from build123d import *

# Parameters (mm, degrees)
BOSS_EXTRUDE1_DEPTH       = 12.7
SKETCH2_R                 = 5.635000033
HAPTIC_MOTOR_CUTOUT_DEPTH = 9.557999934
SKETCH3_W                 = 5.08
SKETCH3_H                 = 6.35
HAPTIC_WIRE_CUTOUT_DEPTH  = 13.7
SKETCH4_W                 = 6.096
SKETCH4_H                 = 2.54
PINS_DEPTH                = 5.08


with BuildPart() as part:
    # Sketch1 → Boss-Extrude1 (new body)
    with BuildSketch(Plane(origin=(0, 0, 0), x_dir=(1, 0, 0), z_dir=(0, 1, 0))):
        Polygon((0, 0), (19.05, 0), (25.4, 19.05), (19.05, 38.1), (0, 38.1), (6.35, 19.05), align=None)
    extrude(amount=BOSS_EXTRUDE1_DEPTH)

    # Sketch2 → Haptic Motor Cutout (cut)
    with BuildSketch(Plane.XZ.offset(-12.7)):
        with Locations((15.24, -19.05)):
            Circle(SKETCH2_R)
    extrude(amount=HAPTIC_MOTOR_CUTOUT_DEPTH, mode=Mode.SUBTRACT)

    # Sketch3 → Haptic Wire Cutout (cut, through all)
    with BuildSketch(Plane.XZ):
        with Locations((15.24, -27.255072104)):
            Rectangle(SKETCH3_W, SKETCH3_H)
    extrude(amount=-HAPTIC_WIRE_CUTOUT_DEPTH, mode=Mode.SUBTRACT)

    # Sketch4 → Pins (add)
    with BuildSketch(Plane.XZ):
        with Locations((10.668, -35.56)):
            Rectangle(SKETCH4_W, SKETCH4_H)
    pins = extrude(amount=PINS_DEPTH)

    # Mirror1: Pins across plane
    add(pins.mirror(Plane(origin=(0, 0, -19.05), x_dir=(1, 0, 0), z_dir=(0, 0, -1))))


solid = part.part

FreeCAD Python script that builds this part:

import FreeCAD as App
import Part
import Sketcher

V = App.Vector
Q = App.Units.Quantity


def add_polygon(sketch, points):
    """Adds a closed chain of lines whose ends are joined by coincident constraints."""
    first, n = sketch.GeometryCount, len(points)
    for a, b in zip(points, points[1:] + points[:1]):
        sketch.addGeometry(Part.LineSegment(App.Vector(*a, 0), App.Vector(*b, 0)), False)
    for i in range(n):
        sketch.addConstraint(Sketcher.Constraint("Coincident", first + i, 2, first + (i + 1) % n, 1))

doc = App.newDocument("Part")
body = doc.addObject("PartDesign::Body", "Body")

sketch1 = body.newObject("Sketcher::SketchObject", "Sketch")
sketch1.AttachmentSupport = (doc.getObject("XZ_Plane"), [""])
sketch1.MapMode = "FlatFace"
add_polygon(sketch1, [(0, 0), (19, 0), (25, -19), (19, -38), (0, -38), (6, -19)])
sketch1.addConstraint([
    Sketcher.Constraint("Horizontal", 0),
    Sketcher.Constraint("Horizontal", 3),
    Sketcher.Constraint("Coincident", 5, 2, -1, 1),
    Sketcher.Constraint("PointOnObject", 3, 2, -2),
    Sketcher.Constraint("Parallel", 2, 4),
    Sketcher.Constraint("Parallel", 1, 5),
    Sketcher.Constraint("Horizontal", 1, 2, 4, 2),
    Sketcher.Constraint("Equal", 1, 2),
    Sketcher.Constraint("DistanceX", -1, 1, 1, 2, Q("1 in")),
    Sketcher.Constraint("DistanceX", 0, 1, 0, 2, Q("0.75 in")),
    Sketcher.Constraint("DistanceY", 2, 2, -1, 1, Q("1.5 in")),
])
pad1 = body.newObject("PartDesign::Pad", "Pad")
pad1.Profile = sketch1
pad1.Length = Q("0.5 in")
pad1.Reversed = True

sketch2 = body.newObject("Sketcher::SketchObject", "Sketch001")
sketch2.AttachmentSupport = (doc.getObject("XZ_Plane"), [""])
sketch2.MapMode = "FlatFace"
sketch2.AttachmentOffset = App.Placement(V(0, 0, -0.5 * 25.4), App.Rotation())
sketch2.addGeometry(Part.Circle(V(15, -19, 0), V(0, 0, 1), 6), False)
sketch2.addConstraint([
    Sketcher.Constraint("DistanceX", -1, 1, 0, 3, Q("0.6 in")),
    Sketcher.Constraint("Diameter", 0, Q("11.27 mm")),
    Sketcher.Constraint("DistanceY", 0, 3, -1, 1, Q("0.75 in")),
])
pocket1 = body.newObject("PartDesign::Pocket", "Pocket")
pocket1.Profile = sketch2
pocket1.Length = 9.558
pocket1.Reversed = True

sketch3 = body.newObject("Sketcher::SketchObject", "Sketch002")
sketch3.AttachmentSupport = (doc.getObject("XZ_Plane"), [""])
sketch3.MapMode = "FlatFace"
add_polygon(sketch3, [(13, -24), (13, -30), (18, -30), (18, -24)])
sketch3.addConstraint([
    Sketcher.Constraint("Vertical", 0),
    Sketcher.Constraint("Horizontal", 1),
    Sketcher.Constraint("Vertical", 2),
    Sketcher.Constraint("Horizontal", 3),
    Sketcher.Constraint("DistanceX", 1, 1, 1, 2, Q("0.2 in")),
    Sketcher.Constraint("DistanceY", 0, 2, 0, 1, Q("0.25 in")),
    Sketcher.Constraint("DistanceX", -1, 1, 0, 2, Q("0.5 in")),
    Sketcher.Constraint("DistanceY", 0, 2, -1, 1, Q("30.430072 mm")),
])
pocket2 = body.newObject("PartDesign::Pocket", "Pocket001")
pocket2.Profile = sketch3
pocket2.Type = "ThroughAll"

sketch4 = body.newObject("Sketcher::SketchObject", "Sketch003")
sketch4.AttachmentSupport = (doc.getObject("XZ_Plane"), [""])
sketch4.MapMode = "FlatFace"
add_polygon(sketch4, [(7.6, -34.3), (7.6, -36.8), (13.7, -36.8), (13.7, -34.3)])
sketch4.addConstraint([
    Sketcher.Constraint("Vertical", 0),
    Sketcher.Constraint("Horizontal", 1),
    Sketcher.Constraint("Vertical", 2),
    Sketcher.Constraint("Horizontal", 3),
    Sketcher.Constraint("DistanceY", 0, 2, 0, 1, Q("0.1 in")),
    Sketcher.Constraint("DistanceX", 1, 1, 1, 2, Q("0.24 in")),
    Sketcher.Constraint("DistanceX", -1, 1, 0, 2, Q("0.3 in")),
    Sketcher.Constraint("DistanceY", 0, 2, -1, 1, Q("1.45 in")),
])
pad2 = body.newObject("PartDesign::Pad", "Pad001")
pad2.Profile = sketch4
pad2.Length = Q("0.2 in")
doc.recompute()

datumplane = body.newObject("PartDesign::Plane", "DatumPlane")
datumplane.AttachmentSupport = (doc.getObject("XY_Plane"), [""])
datumplane.MapMode = "FlatFace"
datumplane.AttachmentOffset = App.Placement(V(0, 0, -0.75 * 25.4), App.Rotation())
mirrored = body.newObject("PartDesign::Mirrored", "Mirrored")
mirrored.Originals = [pad2]
mirrored.MirrorPlane = (datumplane, [""])
body.Tip = mirrored

doc.recompute()
